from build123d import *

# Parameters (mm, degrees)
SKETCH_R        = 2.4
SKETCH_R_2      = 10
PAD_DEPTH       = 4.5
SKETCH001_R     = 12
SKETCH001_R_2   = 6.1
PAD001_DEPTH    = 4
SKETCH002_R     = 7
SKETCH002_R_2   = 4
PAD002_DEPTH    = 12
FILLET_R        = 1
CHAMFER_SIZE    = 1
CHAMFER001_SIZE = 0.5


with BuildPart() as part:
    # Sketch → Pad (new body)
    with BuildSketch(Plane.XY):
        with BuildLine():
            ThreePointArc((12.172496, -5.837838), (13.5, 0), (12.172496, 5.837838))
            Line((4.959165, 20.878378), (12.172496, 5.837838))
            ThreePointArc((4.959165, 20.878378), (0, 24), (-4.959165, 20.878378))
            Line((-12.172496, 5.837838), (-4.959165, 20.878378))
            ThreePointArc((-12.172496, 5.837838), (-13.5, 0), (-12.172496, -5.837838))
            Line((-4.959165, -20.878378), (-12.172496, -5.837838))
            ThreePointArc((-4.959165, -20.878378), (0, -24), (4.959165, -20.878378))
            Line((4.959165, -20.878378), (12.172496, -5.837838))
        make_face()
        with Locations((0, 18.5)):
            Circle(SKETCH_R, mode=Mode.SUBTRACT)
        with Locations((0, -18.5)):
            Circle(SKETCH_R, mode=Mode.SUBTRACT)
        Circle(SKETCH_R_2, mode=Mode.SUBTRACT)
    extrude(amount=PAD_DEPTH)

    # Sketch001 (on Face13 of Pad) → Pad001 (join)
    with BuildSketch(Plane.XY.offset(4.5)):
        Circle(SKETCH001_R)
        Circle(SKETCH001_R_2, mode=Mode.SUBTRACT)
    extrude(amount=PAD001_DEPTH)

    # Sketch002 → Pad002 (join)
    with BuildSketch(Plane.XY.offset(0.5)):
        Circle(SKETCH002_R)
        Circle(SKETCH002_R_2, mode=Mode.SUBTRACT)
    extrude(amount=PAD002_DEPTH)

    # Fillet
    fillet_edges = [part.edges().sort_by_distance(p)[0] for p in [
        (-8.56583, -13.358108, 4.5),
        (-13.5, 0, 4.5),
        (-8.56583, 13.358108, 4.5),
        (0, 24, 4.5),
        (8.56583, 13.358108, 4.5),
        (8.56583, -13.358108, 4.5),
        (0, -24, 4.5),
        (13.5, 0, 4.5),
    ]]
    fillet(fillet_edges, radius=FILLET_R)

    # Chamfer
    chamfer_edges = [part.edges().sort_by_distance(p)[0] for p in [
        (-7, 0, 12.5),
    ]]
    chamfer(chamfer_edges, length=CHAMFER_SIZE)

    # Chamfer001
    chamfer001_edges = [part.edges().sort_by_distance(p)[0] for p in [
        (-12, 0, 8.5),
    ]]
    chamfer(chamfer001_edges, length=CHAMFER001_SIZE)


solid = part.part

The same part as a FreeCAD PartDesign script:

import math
import FreeCAD as App
import Part
import Sketcher
Q = App.Units.Quantity


def edges_at(feature, points):
    """Names of the edges that pass closest to the given points."""
    edges = feature.Shape.Edges
    near = lambda p: min(range(len(edges)), key=lambda i: edges[i].distToShape(Part.Vertex(*p))[0])
    return sorted({f"Edge{near(p) + 1}" for p in points})

doc = App.newDocument("Part")
params = doc.addObject("Spreadsheet::Sheet", "Params")
for row, (alias, value) in enumerate([
    ("sketch1_diameter", "20 mm"),
    ("sketch1_diameter2", "4.8 mm"),
    ("sketch1_radius", "5.5 mm"),
    ("pad1_length", "4.5 mm"),
    ("sketch2_diameter", "24 mm"),
    ("sketch2_diameter2", "12.2 mm"),
    ("pad2_length", "4 mm"),
    ("sketch3_diameter", "14 mm"),
    ("sketch3_diameter2", "8 mm"),
    ("pad3_length", "12 mm"),
    ("fillet_radius", "1 mm"),
    ("chamfer_size", "1 mm"),
    ("chamfer2_size", "0.5 mm"),
], start=1):
    params.set(f"A{row}", alias)
    params.set(f"B{row}", "=" + value)
    params.setAlias(f"B{row}", alias)

body = doc.addObject("PartDesign::Body", "Body")

sketch1 = body.newObject("Sketcher::SketchObject", "Sketch")
sketch1.AttachmentSupport = (doc.getObject("XY_Plane"), [""])
sketch1.MapMode = "FlatFace"
sketch1.addGeometry([
    Part.ArcOfCircle(Part.Circle(App.Vector(0, 0, 0), App.Vector(0, 0, 1), 13.5), math.radians(-26), math.radians(26)),
    Part.LineSegment(App.Vector(12.2, 5.8, 0), App.Vector(5, 20.9, 0)),
    Part.ArcOfCircle(Part.Circle(App.Vector(0, 18.5, 0), App.Vector(0, 0, 1), 5.5), math.radians(26), math.radians(154)),
    Part.LineSegment(App.Vector(-5, 20.9, 0), App.Vector(-12.2, 5.8, 0)),
    Part.ArcOfCircle(Part.Circle(App.Vector(0, 0, 0), App.Vector(0, 0, 1), 13.5), math.radians(154), math.radians(206)),
    Part.LineSegment(App.Vector(-12.2, -5.8, 0), App.Vector(-5, -20.9, 0)),
    Part.ArcOfCircle(Part.Circle(App.Vector(0, -18.5, 0), App.Vector(0, 0, 1), 5.5), math.radians(-154), math.radians(-26)),
    Part.LineSegment(App.Vector(5, -20.9, 0), App.Vector(12.2, -5.8, 0)),
    Part.Circle(App.Vector(0, -18.5, 0), App.Vector(0, 0, 1), 2.4),
    Part.Circle(App.Vector(0, 0, 0), App.Vector(0, 0, 1), 10),
    Part.Circle(App.Vector(0, 18.5, 0), App.Vector(0, 0, 1), 2.4),
], False)
sketch1.addConstraint([
    Sketcher.Constraint("Tangent", 0, 2, 1, 1),
    Sketcher.Constraint("Tangent", 1, 2, 2, 1),
    Sketcher.Constraint("Tangent", 2, 2, 3, 1),
    Sketcher.Constraint("Tangent", 3, 2, 4, 1),
    Sketcher.Constraint("Tangent", 4, 2, 5, 1),
    Sketcher.Constraint("Tangent", 5, 2, 6, 1),
    Sketcher.Constraint("Tangent", 6, 2, 7, 1),
    Sketcher.Constraint("Tangent", 7, 2, 0, 1),
    Sketcher.Constraint("Coincident", 0, 3, -1, 1),
    Sketcher.Constraint("Coincident", 4, 3, -1, 1),
    Sketcher.Constraint("Coincident", 9, 3, -1, 1),
    Sketcher.Constraint("Coincident", 8, 3, 6, 3),
    Sketcher.Constraint("Coincident", 10, 3, 2, 3),
    Sketcher.Constraint("Equal", 0, 4),
    Sketcher.Constraint("Equal", 2, 6),
    Sketcher.Constraint("Equal", 8, 10),
    Sketcher.Constraint("Symmetric", 2, 3, 6, 3, -1, 1),
    Sketcher.Constraint("PointOnObject", 2, 3, -2),
    Sketcher.Constraint("Diameter", 9, Q("20 mm")),
    Sketcher.Constraint("Diameter", 8, Q("4.8 mm")),
    Sketcher.Constraint("Radius", 2, Q("5.5 mm")),
    Sketcher.Constraint("DistanceY", 6, 3, 2, 3, Q("37 mm")),
    Sketcher.Constraint("Radius", 0, Q("13.500004 mm")),
])
sketch1.setExpression("Constraints[18]", "Params.sketch1_diameter")
sketch1.setExpression("Constraints[19]", "Params.sketch1_diameter2")
sketch1.setExpression("Constraints[20]", "Params.sketch1_radius")
pad1 = body.newObject("PartDesign::Pad", "Pad")
pad1.Profile = sketch1
pad1.setExpression("Length", "Params.pad1_length")

sketch2 = body.newObject("Sketcher::SketchObject", "Sketch001")
sketch2.AttachmentSupport = (doc.getObject("XY_Plane"), [""])
sketch2.MapMode = "FlatFace"
sketch2.AttachmentOffset = App.Placement(App.Vector(0, 0, 4.5), App.Rotation())
sketch2.addGeometry([
    Part.Circle(App.Vector(0, 0, 0), App.Vector(0, 0, 1), 12),
    Part.Circle(App.Vector(0, 0, 0), App.Vector(0, 0, 1), 6),
], False)
sketch2.addConstraint([
    Sketcher.Constraint("Coincident", 0, 3, -1, 1),
    Sketcher.Constraint("Coincident", 1, 3, -1, 1),
    Sketcher.Constraint("Diameter", 0, Q("24 mm")),
    Sketcher.Constraint("Diameter", 1, Q("12.2 mm")),
])
sketch2.setExpression("Constraints[2]", "Params.sketch2_diameter")
sketch2.setExpression("Constraints[3]", "Params.sketch2_diameter2")
pad2 = body.newObject("PartDesign::Pad", "Pad001")
pad2.Profile = sketch2
pad2.setExpression("Length", "Params.pad2_length")

sketch3 = body.newObject("Sketcher::SketchObject", "Sketch002")
sketch3.AttachmentSupport = (doc.getObject("XY_Plane"), [""])
sketch3.MapMode = "FlatFace"
sketch3.AttachmentOffset = App.Placement(App.Vector(0, 0, 0.5), App.Rotation())
sketch3.addGeometry([
    Part.Circle(App.Vector(0, 0, 0), App.Vector(0, 0, 1), 7),
    Part.Circle(App.Vector(0, 0, 0), App.Vector(0, 0, 1), 4),
], False)
sketch3.addConstraint([
    Sketcher.Constraint("Coincident", 0, 3, -1, 1),
    Sketcher.Constraint("Coincident", 1, 3, -1, 1),
    Sketcher.Constraint("Diameter", 0, Q("14 mm")),
    Sketcher.Constraint("Diameter", 1, Q("8 mm")),
])
sketch3.setExpression("Constraints[2]", "Params.sketch3_diameter")
sketch3.setExpression("Constraints[3]", "Params.sketch3_diameter2")
pad3 = body.newObject("PartDesign::Pad", "Pad002")
pad3.Profile = sketch3
pad3.setExpression("Length", "Params.pad3_length")
doc.recompute()

fillet = body.newObject("PartDesign::Fillet", "Fillet")
fillet.Base = (pad3, edges_at(pad3, [
    (-8.566, -13.358, 4.5),
    (-13.5, 0, 4.5),
    (-8.566, 13.358, 4.5),
    (0, 24, 4.5),
    (8.566, 13.358, 4.5),
    (8.566, -13.358, 4.5),
    (0, -24, 4.5),
    (13.5, 0, 4.5),
]))
fillet.setExpression("Radius", "Params.fillet_radius")
doc.recompute()

chamfer = body.newObject("PartDesign::Chamfer", "Chamfer")
chamfer.Base = (fillet, edges_at(fillet, [(-7, 0, 12.5)]))
chamfer.setExpression("Size", "Params.chamfer_size")
doc.recompute()

chamfer2 = body.newObject("PartDesign::Chamfer", "Chamfer001")
chamfer2.Base = (chamfer, edges_at(chamfer, [(-12, 0, 8.5)]))
chamfer2.setExpression("Size", "Params.chamfer2_size")

doc.recompute()
